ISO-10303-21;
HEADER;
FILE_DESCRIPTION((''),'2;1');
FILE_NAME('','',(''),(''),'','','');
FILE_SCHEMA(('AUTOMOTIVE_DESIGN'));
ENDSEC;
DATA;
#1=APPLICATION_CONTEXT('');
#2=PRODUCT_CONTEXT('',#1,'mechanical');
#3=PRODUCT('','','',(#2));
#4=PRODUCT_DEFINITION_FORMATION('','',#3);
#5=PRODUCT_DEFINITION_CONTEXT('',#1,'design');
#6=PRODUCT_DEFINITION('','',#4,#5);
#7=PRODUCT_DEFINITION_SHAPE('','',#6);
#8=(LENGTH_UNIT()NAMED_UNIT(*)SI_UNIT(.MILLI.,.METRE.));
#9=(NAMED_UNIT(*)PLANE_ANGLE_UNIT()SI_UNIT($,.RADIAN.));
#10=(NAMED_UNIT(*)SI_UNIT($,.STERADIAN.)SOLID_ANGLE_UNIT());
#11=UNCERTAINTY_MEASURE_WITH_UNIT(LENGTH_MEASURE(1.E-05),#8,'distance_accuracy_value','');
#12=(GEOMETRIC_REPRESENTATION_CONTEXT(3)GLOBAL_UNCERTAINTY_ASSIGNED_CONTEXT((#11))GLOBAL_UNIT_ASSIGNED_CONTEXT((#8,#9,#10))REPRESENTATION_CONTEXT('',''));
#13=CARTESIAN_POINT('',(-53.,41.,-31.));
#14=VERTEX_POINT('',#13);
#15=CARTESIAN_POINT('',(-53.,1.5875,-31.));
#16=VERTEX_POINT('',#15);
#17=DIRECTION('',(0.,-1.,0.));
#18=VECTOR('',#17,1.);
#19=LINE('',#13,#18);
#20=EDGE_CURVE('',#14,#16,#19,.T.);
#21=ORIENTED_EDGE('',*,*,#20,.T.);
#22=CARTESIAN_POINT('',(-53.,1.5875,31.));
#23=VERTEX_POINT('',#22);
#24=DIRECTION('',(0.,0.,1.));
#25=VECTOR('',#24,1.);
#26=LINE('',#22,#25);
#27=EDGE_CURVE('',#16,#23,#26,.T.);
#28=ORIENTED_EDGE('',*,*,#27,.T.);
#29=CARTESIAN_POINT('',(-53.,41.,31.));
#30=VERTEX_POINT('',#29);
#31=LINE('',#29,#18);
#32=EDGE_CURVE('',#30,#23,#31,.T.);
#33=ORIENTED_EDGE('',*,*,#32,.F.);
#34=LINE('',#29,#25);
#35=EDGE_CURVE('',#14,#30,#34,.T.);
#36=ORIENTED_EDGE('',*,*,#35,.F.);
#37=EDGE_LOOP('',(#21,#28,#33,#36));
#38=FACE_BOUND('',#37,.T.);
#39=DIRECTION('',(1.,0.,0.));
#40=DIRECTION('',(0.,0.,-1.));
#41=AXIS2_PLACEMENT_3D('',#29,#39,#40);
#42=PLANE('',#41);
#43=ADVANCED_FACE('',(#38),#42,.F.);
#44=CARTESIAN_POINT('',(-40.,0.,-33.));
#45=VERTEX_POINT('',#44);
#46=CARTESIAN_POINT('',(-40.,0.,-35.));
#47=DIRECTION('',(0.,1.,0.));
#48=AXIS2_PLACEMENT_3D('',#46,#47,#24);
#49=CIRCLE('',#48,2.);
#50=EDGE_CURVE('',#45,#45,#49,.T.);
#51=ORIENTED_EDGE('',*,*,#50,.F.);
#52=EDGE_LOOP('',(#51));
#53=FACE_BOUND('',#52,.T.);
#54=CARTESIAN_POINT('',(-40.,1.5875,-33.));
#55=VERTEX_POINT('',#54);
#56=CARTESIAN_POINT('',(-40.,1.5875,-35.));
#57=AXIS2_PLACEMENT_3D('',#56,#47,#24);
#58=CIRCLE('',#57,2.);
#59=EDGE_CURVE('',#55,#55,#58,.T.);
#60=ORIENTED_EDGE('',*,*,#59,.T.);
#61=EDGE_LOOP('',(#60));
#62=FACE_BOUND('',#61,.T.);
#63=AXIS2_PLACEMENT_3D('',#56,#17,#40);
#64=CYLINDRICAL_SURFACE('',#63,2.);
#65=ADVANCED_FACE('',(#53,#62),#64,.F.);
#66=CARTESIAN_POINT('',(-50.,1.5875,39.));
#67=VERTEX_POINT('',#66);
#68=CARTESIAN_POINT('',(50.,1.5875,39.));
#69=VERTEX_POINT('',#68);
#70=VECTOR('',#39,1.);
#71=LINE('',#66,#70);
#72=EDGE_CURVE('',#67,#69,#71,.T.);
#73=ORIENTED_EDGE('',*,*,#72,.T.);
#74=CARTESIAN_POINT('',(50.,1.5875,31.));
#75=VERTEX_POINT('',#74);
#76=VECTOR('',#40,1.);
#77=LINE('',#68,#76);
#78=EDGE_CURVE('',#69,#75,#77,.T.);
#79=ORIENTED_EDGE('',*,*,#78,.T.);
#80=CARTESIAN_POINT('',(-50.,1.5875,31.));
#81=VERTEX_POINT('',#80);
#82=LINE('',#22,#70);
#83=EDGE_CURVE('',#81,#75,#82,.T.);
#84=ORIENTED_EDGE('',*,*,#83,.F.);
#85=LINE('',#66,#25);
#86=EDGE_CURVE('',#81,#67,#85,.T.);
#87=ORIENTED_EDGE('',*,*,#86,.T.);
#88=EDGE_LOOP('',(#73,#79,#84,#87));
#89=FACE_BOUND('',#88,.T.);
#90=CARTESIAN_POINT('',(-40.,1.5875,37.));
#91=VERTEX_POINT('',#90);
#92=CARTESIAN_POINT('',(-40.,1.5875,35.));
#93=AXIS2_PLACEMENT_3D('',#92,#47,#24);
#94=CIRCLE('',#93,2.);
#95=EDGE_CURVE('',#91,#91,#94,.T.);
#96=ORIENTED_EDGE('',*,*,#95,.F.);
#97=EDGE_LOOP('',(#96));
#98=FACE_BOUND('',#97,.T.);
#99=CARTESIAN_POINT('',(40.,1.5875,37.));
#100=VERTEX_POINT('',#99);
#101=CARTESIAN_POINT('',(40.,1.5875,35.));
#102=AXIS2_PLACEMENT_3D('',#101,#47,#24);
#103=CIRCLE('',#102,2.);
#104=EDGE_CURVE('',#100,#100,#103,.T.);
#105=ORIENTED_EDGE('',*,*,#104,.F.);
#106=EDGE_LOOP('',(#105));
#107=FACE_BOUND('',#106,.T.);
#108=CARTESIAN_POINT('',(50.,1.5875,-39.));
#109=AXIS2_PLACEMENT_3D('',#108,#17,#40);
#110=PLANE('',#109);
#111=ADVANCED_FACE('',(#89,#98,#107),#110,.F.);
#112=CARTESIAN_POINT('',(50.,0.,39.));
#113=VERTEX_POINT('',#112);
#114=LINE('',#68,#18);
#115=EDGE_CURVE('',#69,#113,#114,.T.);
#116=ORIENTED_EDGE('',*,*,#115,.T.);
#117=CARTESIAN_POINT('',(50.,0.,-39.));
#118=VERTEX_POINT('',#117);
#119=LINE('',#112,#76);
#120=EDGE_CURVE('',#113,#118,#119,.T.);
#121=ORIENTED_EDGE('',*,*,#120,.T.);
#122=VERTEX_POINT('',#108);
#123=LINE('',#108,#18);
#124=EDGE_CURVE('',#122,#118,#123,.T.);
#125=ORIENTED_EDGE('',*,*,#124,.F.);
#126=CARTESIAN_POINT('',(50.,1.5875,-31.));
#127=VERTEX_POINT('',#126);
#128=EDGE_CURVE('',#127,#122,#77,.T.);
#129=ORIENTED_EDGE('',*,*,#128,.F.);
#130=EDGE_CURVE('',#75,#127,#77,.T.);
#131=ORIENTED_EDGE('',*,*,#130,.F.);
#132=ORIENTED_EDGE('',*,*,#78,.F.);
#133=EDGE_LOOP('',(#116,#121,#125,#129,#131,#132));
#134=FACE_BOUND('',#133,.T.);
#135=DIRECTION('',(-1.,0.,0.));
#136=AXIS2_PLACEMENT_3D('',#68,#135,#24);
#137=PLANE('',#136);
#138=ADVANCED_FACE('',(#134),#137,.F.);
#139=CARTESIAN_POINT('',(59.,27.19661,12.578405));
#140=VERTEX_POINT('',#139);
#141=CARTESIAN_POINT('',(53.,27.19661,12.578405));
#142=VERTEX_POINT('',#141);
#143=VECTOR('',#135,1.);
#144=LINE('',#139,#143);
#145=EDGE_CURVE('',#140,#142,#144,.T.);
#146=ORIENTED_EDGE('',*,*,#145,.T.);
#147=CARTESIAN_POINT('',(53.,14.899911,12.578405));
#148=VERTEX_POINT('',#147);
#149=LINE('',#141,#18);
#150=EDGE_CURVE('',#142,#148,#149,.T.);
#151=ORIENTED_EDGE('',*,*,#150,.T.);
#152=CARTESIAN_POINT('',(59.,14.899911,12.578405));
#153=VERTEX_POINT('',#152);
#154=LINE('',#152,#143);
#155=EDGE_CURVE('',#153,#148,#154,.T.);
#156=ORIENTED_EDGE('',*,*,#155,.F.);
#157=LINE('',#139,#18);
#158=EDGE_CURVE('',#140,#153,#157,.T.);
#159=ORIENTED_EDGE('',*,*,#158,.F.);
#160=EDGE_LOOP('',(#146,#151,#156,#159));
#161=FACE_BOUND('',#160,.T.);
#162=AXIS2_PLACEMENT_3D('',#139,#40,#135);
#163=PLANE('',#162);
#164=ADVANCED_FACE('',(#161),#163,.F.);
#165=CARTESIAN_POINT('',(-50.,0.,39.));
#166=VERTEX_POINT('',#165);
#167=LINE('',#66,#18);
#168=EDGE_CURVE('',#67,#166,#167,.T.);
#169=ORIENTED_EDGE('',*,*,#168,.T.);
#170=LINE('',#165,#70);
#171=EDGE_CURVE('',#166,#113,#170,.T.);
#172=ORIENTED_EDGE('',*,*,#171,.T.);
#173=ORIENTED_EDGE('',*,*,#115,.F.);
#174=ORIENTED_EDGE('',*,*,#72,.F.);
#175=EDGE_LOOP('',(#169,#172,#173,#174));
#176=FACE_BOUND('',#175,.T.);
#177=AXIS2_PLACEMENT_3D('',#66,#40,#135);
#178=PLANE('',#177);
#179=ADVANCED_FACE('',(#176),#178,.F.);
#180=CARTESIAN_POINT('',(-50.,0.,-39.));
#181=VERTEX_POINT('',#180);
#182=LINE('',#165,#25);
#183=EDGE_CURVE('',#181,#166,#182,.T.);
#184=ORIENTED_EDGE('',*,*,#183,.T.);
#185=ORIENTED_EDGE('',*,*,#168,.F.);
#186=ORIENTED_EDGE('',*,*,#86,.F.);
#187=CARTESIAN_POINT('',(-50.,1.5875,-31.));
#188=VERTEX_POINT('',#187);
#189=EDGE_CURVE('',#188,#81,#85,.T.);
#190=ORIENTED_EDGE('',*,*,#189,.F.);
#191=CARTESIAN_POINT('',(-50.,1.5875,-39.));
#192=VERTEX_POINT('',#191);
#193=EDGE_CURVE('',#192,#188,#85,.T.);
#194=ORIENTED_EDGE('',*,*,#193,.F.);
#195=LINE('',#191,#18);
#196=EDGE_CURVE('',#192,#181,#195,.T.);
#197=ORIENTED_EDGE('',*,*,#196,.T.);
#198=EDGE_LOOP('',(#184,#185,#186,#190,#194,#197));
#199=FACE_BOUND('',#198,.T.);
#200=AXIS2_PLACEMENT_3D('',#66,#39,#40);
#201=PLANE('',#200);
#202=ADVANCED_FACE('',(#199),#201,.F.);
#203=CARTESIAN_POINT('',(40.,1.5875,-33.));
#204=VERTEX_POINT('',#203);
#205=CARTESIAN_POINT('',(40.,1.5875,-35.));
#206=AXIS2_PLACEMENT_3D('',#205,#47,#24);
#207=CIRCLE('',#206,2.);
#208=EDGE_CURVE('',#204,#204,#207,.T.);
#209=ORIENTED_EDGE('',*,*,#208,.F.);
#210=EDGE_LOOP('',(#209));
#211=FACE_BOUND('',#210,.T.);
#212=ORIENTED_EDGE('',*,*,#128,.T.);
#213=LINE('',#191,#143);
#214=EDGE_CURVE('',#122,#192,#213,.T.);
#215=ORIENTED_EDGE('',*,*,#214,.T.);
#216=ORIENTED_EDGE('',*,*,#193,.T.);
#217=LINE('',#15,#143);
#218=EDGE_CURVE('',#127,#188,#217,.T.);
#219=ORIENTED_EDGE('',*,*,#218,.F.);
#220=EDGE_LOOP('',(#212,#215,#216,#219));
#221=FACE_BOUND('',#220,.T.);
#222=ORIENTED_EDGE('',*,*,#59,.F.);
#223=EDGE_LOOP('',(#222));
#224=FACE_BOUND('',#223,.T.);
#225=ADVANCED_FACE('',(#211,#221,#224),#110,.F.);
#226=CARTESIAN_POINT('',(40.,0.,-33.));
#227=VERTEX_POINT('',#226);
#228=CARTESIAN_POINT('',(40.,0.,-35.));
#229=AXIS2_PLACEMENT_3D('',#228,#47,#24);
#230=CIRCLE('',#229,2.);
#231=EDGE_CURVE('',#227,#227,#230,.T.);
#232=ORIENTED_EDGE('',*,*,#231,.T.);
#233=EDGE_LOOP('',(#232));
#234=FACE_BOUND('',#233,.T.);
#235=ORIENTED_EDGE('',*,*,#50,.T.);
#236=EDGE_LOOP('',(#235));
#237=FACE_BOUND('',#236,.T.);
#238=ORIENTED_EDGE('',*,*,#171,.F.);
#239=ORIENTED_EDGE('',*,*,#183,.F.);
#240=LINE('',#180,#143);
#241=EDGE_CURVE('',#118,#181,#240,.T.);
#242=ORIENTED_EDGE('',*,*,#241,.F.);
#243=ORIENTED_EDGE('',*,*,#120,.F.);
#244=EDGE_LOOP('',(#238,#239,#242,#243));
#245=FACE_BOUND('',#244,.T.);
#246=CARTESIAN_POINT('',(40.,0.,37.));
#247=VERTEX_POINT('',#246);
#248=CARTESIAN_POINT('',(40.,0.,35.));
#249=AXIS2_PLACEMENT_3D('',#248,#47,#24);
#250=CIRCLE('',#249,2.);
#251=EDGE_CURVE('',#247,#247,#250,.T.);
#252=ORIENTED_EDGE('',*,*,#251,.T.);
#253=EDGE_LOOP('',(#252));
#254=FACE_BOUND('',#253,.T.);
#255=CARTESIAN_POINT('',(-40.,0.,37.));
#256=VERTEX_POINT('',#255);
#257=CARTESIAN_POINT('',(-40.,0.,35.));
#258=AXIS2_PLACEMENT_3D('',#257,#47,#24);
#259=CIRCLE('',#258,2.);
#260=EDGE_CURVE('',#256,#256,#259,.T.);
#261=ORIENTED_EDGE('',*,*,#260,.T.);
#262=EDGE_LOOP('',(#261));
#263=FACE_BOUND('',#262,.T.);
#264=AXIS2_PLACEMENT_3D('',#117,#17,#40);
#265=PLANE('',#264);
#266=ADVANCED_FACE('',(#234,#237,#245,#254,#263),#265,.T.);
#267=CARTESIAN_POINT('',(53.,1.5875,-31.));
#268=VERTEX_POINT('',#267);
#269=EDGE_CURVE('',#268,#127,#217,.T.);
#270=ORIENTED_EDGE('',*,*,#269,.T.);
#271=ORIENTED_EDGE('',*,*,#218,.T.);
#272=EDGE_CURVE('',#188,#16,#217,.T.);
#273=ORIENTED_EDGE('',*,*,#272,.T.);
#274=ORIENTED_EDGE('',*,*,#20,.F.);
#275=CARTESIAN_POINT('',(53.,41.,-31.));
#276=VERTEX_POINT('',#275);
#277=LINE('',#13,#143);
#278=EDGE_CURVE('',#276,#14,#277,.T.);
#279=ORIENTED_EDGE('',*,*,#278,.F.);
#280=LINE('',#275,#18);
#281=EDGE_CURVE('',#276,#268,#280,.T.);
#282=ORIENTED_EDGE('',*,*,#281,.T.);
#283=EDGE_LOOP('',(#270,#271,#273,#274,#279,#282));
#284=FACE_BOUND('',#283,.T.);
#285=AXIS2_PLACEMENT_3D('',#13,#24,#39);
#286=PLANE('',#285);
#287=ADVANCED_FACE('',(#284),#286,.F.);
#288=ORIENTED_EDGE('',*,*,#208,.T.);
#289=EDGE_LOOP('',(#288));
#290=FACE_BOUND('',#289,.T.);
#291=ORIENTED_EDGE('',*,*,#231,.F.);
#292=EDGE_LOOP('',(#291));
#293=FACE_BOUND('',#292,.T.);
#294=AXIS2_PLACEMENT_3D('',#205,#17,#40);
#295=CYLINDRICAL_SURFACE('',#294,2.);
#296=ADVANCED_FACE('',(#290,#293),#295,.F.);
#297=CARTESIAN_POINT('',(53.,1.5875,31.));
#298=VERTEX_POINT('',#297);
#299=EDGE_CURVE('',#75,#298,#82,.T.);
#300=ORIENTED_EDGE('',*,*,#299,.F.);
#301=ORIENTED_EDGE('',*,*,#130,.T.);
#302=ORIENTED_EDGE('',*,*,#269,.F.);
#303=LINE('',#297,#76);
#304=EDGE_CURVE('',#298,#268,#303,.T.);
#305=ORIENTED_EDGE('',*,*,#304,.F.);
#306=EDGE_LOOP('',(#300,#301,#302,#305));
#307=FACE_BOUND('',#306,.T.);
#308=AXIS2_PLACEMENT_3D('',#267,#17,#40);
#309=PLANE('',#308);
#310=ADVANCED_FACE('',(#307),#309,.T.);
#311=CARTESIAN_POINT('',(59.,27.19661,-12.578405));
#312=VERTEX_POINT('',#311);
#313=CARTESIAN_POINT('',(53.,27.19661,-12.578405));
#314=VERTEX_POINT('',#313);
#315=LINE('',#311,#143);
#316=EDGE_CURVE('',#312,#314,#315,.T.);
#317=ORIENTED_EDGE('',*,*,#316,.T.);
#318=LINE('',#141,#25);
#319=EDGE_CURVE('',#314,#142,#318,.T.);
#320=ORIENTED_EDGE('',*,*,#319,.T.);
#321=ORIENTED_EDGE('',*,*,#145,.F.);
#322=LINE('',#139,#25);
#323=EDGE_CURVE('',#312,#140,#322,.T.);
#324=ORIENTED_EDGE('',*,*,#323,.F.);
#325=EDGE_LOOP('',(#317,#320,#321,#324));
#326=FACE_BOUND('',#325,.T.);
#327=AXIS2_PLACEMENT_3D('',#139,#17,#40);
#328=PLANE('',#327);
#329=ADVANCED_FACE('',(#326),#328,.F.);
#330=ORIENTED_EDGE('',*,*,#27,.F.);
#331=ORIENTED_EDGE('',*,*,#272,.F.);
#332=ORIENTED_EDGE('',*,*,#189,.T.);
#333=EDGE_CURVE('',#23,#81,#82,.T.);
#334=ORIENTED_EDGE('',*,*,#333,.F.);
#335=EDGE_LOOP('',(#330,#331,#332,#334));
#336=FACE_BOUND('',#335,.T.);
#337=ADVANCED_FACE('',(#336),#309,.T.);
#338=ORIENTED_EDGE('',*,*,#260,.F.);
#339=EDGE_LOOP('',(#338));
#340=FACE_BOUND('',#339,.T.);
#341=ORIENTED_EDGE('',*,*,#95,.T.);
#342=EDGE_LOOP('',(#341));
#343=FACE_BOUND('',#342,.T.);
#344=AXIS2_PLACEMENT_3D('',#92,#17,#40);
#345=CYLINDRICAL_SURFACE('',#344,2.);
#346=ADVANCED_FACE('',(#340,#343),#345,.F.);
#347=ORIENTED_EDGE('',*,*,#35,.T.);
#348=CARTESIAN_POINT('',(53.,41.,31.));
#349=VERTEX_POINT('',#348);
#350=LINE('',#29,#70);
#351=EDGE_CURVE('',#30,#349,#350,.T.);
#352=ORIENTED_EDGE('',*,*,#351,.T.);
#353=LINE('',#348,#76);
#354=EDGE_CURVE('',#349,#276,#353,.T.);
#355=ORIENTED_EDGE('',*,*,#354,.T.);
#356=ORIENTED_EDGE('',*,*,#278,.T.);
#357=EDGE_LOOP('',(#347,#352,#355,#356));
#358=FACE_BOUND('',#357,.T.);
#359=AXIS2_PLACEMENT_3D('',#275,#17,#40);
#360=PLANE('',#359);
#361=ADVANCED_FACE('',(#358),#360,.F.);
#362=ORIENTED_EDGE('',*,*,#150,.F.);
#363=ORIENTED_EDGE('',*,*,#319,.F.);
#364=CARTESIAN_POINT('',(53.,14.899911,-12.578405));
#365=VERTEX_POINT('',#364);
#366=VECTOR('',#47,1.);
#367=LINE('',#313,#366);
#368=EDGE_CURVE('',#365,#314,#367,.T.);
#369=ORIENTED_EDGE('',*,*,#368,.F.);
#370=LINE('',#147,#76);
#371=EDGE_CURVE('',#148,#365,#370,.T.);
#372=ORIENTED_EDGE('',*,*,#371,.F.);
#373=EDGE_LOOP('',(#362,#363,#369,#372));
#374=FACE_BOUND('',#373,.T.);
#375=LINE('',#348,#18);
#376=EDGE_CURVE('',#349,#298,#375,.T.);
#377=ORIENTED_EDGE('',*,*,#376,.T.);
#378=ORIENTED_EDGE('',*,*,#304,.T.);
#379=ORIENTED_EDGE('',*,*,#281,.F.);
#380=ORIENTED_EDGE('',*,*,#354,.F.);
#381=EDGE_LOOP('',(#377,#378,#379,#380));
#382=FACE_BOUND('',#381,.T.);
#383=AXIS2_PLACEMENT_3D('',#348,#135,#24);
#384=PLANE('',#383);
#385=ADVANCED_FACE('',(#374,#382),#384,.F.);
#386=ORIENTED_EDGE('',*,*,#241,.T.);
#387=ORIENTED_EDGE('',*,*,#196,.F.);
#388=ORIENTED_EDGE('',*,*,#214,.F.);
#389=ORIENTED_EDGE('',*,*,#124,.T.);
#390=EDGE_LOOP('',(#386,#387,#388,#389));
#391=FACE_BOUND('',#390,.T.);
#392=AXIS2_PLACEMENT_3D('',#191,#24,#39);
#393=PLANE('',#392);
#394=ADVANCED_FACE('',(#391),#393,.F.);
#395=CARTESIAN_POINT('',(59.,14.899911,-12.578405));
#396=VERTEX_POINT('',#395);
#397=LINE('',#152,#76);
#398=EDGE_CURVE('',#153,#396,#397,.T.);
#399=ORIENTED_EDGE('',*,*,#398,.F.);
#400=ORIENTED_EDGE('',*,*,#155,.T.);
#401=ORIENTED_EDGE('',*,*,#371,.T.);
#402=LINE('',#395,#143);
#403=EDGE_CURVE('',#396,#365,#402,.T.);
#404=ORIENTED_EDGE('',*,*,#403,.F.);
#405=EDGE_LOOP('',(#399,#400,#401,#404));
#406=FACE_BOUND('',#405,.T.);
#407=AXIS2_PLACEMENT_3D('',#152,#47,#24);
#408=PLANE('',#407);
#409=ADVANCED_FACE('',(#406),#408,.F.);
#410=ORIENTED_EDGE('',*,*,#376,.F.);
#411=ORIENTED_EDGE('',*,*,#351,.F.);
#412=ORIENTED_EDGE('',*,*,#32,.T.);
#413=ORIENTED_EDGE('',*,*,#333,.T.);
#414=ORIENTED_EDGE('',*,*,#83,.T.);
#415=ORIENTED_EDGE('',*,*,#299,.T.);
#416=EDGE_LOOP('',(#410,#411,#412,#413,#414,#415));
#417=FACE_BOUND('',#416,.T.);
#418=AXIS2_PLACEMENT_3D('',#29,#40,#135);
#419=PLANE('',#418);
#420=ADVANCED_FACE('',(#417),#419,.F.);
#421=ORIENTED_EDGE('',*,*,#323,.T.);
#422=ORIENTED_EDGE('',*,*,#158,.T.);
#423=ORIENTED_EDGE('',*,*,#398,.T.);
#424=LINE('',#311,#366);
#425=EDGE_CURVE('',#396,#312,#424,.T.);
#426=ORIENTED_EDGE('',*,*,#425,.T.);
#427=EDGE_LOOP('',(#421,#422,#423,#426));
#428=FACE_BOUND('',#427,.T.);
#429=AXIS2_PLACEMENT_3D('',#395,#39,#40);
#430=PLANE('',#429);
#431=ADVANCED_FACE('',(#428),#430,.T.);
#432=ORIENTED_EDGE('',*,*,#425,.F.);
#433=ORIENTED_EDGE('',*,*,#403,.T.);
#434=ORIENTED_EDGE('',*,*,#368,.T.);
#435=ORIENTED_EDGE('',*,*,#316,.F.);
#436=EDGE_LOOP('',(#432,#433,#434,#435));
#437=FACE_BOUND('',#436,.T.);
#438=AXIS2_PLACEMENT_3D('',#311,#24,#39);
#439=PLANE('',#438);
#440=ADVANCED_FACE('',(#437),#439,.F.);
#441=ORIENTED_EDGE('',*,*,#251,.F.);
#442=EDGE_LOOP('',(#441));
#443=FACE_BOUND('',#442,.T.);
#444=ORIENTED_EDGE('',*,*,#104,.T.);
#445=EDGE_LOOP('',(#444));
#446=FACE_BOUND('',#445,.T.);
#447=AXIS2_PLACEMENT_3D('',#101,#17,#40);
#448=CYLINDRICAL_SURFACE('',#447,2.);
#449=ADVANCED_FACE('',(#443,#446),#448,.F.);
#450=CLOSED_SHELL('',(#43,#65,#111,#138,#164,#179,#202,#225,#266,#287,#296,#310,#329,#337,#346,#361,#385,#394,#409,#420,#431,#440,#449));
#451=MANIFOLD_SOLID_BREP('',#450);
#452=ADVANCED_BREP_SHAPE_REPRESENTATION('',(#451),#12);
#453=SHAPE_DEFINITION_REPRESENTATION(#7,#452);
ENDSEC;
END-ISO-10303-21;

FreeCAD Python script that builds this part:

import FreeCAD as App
import Part
import Sketcher

V = App.Vector


def add_polygon(sketch, points):
    """Adds a closed chain of lines whose ends are joined by coincident constraints."""
    first, n = sketch.GeometryCount, len(points)
    for a, b in zip(points, points[1:] + points[:1]):
        sketch.addGeometry(Part.LineSegment(App.Vector(*a, 0), App.Vector(*b, 0)), False)
    for i in range(n):
        sketch.addConstraint(Sketcher.Constraint("Coincident", first + i, 2, first + (i + 1) % n, 1))

doc = App.newDocument("Part")
params = doc.addObject("Spreadsheet::Sheet", "Params")
for row, (alias, value) in enumerate([
    ("sketch1_diameter", "4 mm"),
    ("sketch1_width", "100 mm"),
    ("sketch1_height", "78 mm"),
    ("pad1_length", "1.5875 mm"),
    ("sketch2_width", "106 mm"),
    ("sketch2_height", "62 mm"),
    ("pad2_length", "39.4125 mm"),
    ("pad3_length", "6 mm"),
], start=1):
    params.set(f"A{row}", alias)
    params.set(f"B{row}", "=" + value)
    params.setAlias(f"B{row}", alias)

body = doc.addObject("PartDesign::Body", "Body")

sketch1 = doc.addObject("Sketcher::SketchObject", "Sketch")
body.addObject(sketch1)
sketch1.AttachmentSupport = (doc.XZ_Plane, [""])
sketch1.MapMode = "FlatFace"
add_polygon(sketch1, [(-50, -39), (-50, 39), (50, 39), (50, -39)])
sketch1.addGeometry(Part.Circle(V(-40, 35, 0), V(0, 0, 1), 2), False)
sketch1.addGeometry(Part.Circle(V(40, 35, 0), V(0, 0, 1), 2), False)
sketch1.addGeometry(Part.Circle(V(-40, -35, 0), V(0, 0, 1), 2), False)
sketch1.addGeometry(Part.Circle(V(40, -35, 0), V(0, 0, 1), 2), False)
sketch1.addConstraint(Sketcher.Constraint("Vertical", 0))
sketch1.addConstraint(Sketcher.Constraint("Horizontal", 1))
sketch1.addConstraint(Sketcher.Constraint("Vertical", 2))
sketch1.addConstraint(Sketcher.Constraint("Horizontal", 3))
sketch1.addConstraint(Sketcher.Constraint("Equal", 4, 5))
sketch1.addConstraint(Sketcher.Constraint("Equal", 5, 6))
sketch1.addConstraint(Sketcher.Constraint("Equal", 6, 7))
sketch1.addConstraint(Sketcher.Constraint("Symmetric", 5, 3, 6, 3, -1, 1))
sketch1.addConstraint(Sketcher.Constraint("Symmetric", 4, 3, 7, 3, -1, 1))
sketch1.addConstraint(Sketcher.Constraint("Symmetric", 0, 2, 2, 2, -1, 1))
sketch1.addConstraint(Sketcher.Constraint("Symmetric", 4, 3, 5, 3, -2))
sketch1.addConstraint(Sketcher.Constraint("Diameter", 4, 4.0))
sketch1.addConstraint(Sketcher.Constraint("DistanceX", 1, 1, 1, 2, 100.0))
sketch1.addConstraint(Sketcher.Constraint("DistanceY", 0, 1, 0, 2, 78.0))
sketch1.addConstraint(Sketcher.Constraint("DistanceX", 4, 3, -1, 1, 40.0))
sketch1.addConstraint(Sketcher.Constraint("DistanceY", -1, 1, 4, 3, 35.0))
sketch1.setExpression("Constraints[15]", "Params.sketch1_diameter")
sketch1.setExpression("Constraints[16]", "Params.sketch1_width")
sketch1.setExpression("Constraints[17]", "Params.sketch1_height")
pad1 = doc.addObject("PartDesign::Pad", "Pad")
body.addObject(pad1)
pad1.Profile = sketch1
pad1.setExpression("Length", "Params.pad1_length")
pad1.Reversed = True

sketch2 = doc.addObject("Sketcher::SketchObject", "Sketch001")
body.addObject(sketch2)
sketch2.AttachmentSupport = (doc.XZ_Plane, [""])
sketch2.MapMode = "FlatFace"
sketch2.AttachmentOffset = App.Placement(V(0, 0, -1.5875), App.Rotation())
add_polygon(sketch2, [(53, 31), (53, -31), (-53, -31), (-53, 31)])
sketch2.addConstraint(Sketcher.Constraint("Vertical", 0))
sketch2.addConstraint(Sketcher.Constraint("Horizontal", 1))
sketch2.addConstraint(Sketcher.Constraint("Vertical", 2))
sketch2.addConstraint(Sketcher.Constraint("Horizontal", 3))
sketch2.addConstraint(Sketcher.Constraint("Symmetric", 0, 2, 2, 2, -1, 1))
sketch2.addConstraint(Sketcher.Constraint("DistanceX", 1, 2, 1, 1, 106.0))
sketch2.addConstraint(Sketcher.Constraint("DistanceY", 0, 2, 0, 1, 62.0))
sketch2.setExpression("Constraints[9]", "Params.sketch2_width")
sketch2.setExpression("Constraints[10]", "Params.sketch2_height")
pad2 = doc.addObject("PartDesign::Pad", "Pad001")
body.addObject(pad2)
pad2.Profile = sketch2
pad2.setExpression("Length", "Params.pad2_length")
pad2.Reversed = True

sketch3 = doc.addObject("Sketcher::SketchObject", "Sketch002")
body.addObject(sketch3)
sketch3.AttachmentSupport = (doc.YZ_Plane, [""])
sketch3.MapMode = "FlatFace"
sketch3.AttachmentOffset = App.Placement(V(0, 0, 53), App.Rotation())
add_polygon(sketch3, [(27, 13), (15, 13), (15, -13), (27, -13)])
sketch3.addConstraint(Sketcher.Constraint("Horizontal", 0))
sketch3.addConstraint(Sketcher.Constraint("Vertical", 1))
sketch3.addConstraint(Sketcher.Constraint("Horizontal", 2))
sketch3.addConstraint(Sketcher.Constraint("Vertical", 3))
sketch3.addConstraint(Sketcher.Constraint("DistanceX", 0, 2, 0, 1, 12.296699))
sketch3.addConstraint(Sketcher.Constraint("DistanceY", 1, 2, 1, 1, 25.15681))
sketch3.addConstraint(Sketcher.Constraint("DistanceX", -1, 1, 0, 2, 14.899911))
sketch3.addConstraint(Sketcher.Constraint("DistanceY", -1, 1, 0, 2, 12.578405))
pad3 = doc.addObject("PartDesign::Pad", "Pad002")
body.addObject(pad3)
pad3.Profile = sketch3
pad3.setExpression("Length", "Params.pad3_length")

doc.recompute()
